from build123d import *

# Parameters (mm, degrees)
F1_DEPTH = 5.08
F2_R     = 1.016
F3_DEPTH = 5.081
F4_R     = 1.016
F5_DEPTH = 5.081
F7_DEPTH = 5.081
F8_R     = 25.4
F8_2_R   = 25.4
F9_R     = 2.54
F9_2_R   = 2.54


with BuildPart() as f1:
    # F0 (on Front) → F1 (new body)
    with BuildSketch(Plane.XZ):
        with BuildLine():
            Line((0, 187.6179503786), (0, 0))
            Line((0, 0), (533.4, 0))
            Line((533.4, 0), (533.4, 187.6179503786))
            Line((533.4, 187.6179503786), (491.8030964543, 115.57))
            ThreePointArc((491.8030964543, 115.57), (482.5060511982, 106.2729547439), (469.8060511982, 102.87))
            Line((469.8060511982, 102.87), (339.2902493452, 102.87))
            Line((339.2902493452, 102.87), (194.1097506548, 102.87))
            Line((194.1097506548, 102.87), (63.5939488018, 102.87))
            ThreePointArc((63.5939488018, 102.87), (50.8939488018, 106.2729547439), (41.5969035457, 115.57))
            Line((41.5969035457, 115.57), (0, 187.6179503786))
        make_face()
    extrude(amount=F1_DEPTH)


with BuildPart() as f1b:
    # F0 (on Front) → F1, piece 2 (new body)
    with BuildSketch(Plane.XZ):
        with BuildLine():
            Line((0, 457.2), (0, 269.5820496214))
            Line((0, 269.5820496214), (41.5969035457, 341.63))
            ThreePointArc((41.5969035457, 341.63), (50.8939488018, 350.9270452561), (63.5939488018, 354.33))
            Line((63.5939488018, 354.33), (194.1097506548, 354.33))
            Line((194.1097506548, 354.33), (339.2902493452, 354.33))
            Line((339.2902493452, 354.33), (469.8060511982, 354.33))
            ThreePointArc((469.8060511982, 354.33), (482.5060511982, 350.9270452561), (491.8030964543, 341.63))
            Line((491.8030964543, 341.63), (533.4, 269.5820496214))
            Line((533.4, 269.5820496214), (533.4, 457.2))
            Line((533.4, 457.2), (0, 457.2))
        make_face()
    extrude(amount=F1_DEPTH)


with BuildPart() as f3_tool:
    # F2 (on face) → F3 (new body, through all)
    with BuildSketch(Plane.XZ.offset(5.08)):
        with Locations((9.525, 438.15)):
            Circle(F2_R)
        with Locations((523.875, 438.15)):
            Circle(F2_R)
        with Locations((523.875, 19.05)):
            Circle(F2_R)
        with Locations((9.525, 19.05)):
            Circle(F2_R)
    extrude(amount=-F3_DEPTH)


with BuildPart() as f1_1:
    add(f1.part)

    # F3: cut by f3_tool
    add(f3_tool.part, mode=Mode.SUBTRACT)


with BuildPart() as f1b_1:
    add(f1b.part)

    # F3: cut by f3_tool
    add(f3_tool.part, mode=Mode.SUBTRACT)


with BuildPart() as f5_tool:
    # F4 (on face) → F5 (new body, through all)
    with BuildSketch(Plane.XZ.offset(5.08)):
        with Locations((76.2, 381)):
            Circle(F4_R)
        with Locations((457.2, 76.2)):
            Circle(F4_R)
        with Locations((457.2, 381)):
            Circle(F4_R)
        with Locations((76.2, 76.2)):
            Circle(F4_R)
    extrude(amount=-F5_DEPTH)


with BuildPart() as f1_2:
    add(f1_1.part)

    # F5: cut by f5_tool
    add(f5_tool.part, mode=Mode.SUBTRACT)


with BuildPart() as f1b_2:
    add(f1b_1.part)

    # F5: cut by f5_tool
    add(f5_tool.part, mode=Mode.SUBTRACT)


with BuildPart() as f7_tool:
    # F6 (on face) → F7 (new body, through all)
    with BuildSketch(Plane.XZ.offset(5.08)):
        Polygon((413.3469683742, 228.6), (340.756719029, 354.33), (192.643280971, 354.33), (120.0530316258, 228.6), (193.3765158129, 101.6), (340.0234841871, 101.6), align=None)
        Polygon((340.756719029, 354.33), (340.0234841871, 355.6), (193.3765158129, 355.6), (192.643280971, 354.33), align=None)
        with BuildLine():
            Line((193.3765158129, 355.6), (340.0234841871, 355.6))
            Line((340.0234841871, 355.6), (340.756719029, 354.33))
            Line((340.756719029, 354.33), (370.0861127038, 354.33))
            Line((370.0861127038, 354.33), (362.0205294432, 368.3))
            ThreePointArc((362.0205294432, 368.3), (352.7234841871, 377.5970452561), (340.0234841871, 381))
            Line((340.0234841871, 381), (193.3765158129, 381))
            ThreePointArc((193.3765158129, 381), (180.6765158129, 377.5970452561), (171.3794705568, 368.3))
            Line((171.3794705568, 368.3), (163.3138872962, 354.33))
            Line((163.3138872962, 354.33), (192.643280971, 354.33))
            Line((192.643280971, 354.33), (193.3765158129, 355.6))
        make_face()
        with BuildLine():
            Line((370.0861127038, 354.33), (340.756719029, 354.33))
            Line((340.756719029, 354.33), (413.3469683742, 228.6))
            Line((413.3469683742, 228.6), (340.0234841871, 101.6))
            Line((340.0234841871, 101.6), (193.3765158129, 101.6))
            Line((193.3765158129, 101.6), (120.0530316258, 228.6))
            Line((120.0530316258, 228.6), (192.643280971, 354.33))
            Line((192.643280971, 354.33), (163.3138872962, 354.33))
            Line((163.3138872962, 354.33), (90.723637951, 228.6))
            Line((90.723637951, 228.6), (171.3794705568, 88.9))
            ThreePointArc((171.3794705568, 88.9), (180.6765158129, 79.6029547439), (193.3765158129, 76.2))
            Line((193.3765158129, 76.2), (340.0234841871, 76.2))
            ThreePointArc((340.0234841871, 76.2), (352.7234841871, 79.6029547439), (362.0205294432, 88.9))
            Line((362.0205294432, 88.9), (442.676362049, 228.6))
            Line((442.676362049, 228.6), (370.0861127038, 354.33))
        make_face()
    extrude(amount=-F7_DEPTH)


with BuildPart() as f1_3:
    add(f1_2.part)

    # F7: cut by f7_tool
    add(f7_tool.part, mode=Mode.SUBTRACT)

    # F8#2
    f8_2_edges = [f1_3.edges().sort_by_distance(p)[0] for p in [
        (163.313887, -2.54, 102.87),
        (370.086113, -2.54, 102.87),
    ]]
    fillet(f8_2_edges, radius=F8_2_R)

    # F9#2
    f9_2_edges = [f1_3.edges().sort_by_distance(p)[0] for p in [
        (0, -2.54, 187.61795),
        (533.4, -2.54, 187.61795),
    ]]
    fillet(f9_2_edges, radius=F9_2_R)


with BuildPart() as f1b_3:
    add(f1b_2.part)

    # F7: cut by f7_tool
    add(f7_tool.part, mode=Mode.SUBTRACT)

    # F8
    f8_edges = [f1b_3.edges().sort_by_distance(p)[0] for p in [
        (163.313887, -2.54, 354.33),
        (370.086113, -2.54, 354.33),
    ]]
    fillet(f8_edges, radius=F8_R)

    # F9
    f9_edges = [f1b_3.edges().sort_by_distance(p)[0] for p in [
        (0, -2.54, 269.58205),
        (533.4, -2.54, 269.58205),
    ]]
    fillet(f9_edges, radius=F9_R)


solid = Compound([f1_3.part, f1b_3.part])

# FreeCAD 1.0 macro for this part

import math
import FreeCAD as App
import Part
import Sketcher
from FreeCAD import Vector
Q = App.Units.Quantity


def edges_at(feature, points):
    """Names of the edges that pass closest to the given points."""
    edges = feature.Shape.Edges
    near = lambda p: min(range(len(edges)), key=lambda i: edges[i].distToShape(Part.Vertex(*p))[0])
    return sorted({f"Edge{near(p) + 1}" for p in points})

doc = App.newDocument("Part")
body = doc.addObject("PartDesign::Body", "Body")

sketch1 = body.newObject("Sketcher::SketchObject", "Sketch")
sketch1.AttachmentSupport = (doc.getObject("XZ_Plane"), [""])
sketch1.MapMode = "FlatFace"
sketch1.addGeometry([
    Part.LineSegment(Vector(0, 187.61795, 0), Vector(0, 0, 0)),
    Part.LineSegment(Vector(0, 0, 0), Vector(533.4, 0, 0)),
    Part.LineSegment(Vector(533.4, 0, 0), Vector(533.4, 187.61795, 0)),
    Part.LineSegment(Vector(533.4, 187.61795, 0), Vector(491.803096, 115.57, 0)),
    Part.ArcOfCircle(Part.Circle(Vector(469.806051, 128.27, 0), Vector(0, 0, 1), 25.4), math.radians(-90), math.radians(-30)),
    Part.LineSegment(Vector(469.806051, 102.87, 0), Vector(63.593949, 102.87, 0)),
    Part.ArcOfCircle(Part.Circle(Vector(63.593949, 128.27, 0), Vector(0, 0, 1), 25.4), math.radians(-150), math.radians(-90)),
    Part.LineSegment(Vector(41.596904, 115.57, 0), Vector(0, 187.61795, 0)),
], False)
sketch1.addConstraint([
    Sketcher.Constraint("Coincident", 0, 2, 1, 1),
    Sketcher.Constraint("Coincident", 1, 2, 2, 1),
    Sketcher.Constraint("Coincident", 2, 2, 3, 1),
    Sketcher.Constraint("Tangent", 3, 2, 4, 2),
    Sketcher.Constraint("Tangent", 4, 1, 5, 1),
    Sketcher.Constraint("Tangent", 5, 2, 6, 2),
    Sketcher.Constraint("Tangent", 6, 1, 7, 1),
    Sketcher.Constraint("Coincident", 7, 2, 0, 1),
    Sketcher.Constraint("Vertical", 0),
    Sketcher.Constraint("Horizontal", 1),
    Sketcher.Constraint("Vertical", 2),
    Sketcher.Constraint("Horizontal", 5),
    Sketcher.Constraint("Coincident", 0, 2, -1, 1),
    Sketcher.Constraint("Equal", 4, 6),
    Sketcher.Constraint("Horizontal", 3, 2, 6, 1),
    Sketcher.Constraint("Horizontal", 2, 2, 7, 2),
    Sketcher.Constraint("Radius", 4, Q("1 in")),
    Sketcher.Constraint("DistanceX", 1, 1, 1, 2, Q("21 in")),
    Sketcher.Constraint("Angle", 3, Q("-120 deg")),
    Sketcher.Constraint("DistanceY", -1, 1, 4, 3, Q("5.05 in")),
    Sketcher.Constraint("DistanceY", 0, 2, 0, 1, Q("187.61795 mm")),
])
pad1 = body.newObject("PartDesign::Pad", "Pad")
pad1.Profile = sketch1
pad1.Length = Q("0.2 in")
body2 = doc.addObject("PartDesign::Body", "Body001")

sketch2 = body2.newObject("Sketcher::SketchObject", "Sketch001")
sketch2.AttachmentSupport = (doc.getObject("XZ_Plane001"), [""])
sketch2.MapMode = "FlatFace"
sketch2.addGeometry([
    Part.LineSegment(Vector(0, 457.2, 0), Vector(0, 269.58205, 0)),
    Part.LineSegment(Vector(0, 269.58205, 0), Vector(41.596904, 341.63, 0)),
    Part.ArcOfCircle(Part.Circle(Vector(63.593949, 328.93, 0), Vector(0, 0, 1), 25.4), math.radians(90), math.radians(150)),
    Part.LineSegment(Vector(63.593949, 354.33, 0), Vector(469.806051, 354.33, 0)),
    Part.ArcOfCircle(Part.Circle(Vector(469.806051, 328.93, 0), Vector(0, 0, 1), 25.4), math.radians(30), math.radians(90)),
    Part.LineSegment(Vector(491.803096, 341.63, 0), Vector(533.4, 269.58205, 0)),
    Part.LineSegment(Vector(533.4, 269.58205, 0), Vector(533.4, 457.2, 0)),
    Part.LineSegment(Vector(533.4, 457.2, 0), Vector(0, 457.2, 0)),
], False)
sketch2.addConstraint([
    Sketcher.Constraint("Coincident", 0, 2, 1, 1),
    Sketcher.Constraint("Tangent", 1, 2, 2, 2),
    Sketcher.Constraint("Tangent", 2, 1, 3, 1),
    Sketcher.Constraint("Tangent", 3, 2, 4, 2),
    Sketcher.Constraint("Tangent", 4, 1, 5, 1),
    Sketcher.Constraint("Coincident", 5, 2, 6, 1),
    Sketcher.Constraint("Coincident", 6, 2, 7, 1),
    Sketcher.Constraint("Coincident", 7, 2, 0, 1),
    Sketcher.Constraint("Vertical", 0),
    Sketcher.Constraint("Horizontal", 3),
    Sketcher.Constraint("Vertical", 6),
    Sketcher.Constraint("Horizontal", 7),
    Sketcher.Constraint("Equal", 2, 4),
    Sketcher.Constraint("PointOnObject", 0, 2, -2),
    Sketcher.Constraint("Horizontal", 1, 2, 4, 1),
    Sketcher.Constraint("Horizontal", 0, 2, 5, 2),
    Sketcher.Constraint("Radius", 2, Q("1 in")),
    Sketcher.Constraint("DistanceX", 7, 2, 7, 1, Q("21 in")),
    Sketcher.Constraint("DistanceY", -1, 1, 6, 2, Q("18 in")),
    Sketcher.Constraint("Angle", 1, Q("60 deg")),
    Sketcher.Constraint("DistanceY", -1, 1, 2, 3, Q("12.95 in")),
    Sketcher.Constraint("DistanceY", 0, 2, 0, 1, Q("187.61795 mm")),
])
pad2 = body2.newObject("PartDesign::Pad", "Pad001")
pad2.Profile = sketch2
pad2.Length = Q("0.2 in")
body3 = doc.addObject("PartDesign::Body", "Body002")
body3.AllowCompound = True

sketch3 = body3.newObject("Sketcher::SketchObject", "Sketch002")
sketch3.AttachmentSupport = (doc.getObject("XZ_Plane002"), [""])
sketch3.MapMode = "FlatFace"
sketch3.AttachmentOffset = App.Placement(Vector(0, 0, 0.2 * 25.4), App.Rotation())
sketch3.addGeometry([
    Part.Circle(Vector(9.525, 438.15, 0), Vector(0, 0, 1), 1.016),
    Part.Circle(Vector(523.875, 438.15, 0), Vector(0, 0, 1), 1.016),
    Part.Circle(Vector(523.875, 19.05, 0), Vector(0, 0, 1), 1.016),
    Part.Circle(Vector(9.525, 19.05, 0), Vector(0, 0, 1), 1.016),
], False)
sketch3.addConstraint([
    Sketcher.Constraint("Equal", 0, 1),
    Sketcher.Constraint("Equal", 1, 2),
    Sketcher.Constraint("Equal", 2, 3),
    Sketcher.Constraint("Horizontal", 0, 3, 1, 3),
    Sketcher.Constraint("Horizontal", 2, 3, 3, 3),
    Sketcher.Constraint("Vertical", 1, 3, 2, 3),
    Sketcher.Constraint("Vertical", 0, 3, 3, 3),
    Sketcher.Constraint("Diameter", 0, Q("0.08 in")),
    Sketcher.Constraint("DistanceY", 2, 3, 1, 3, Q("16.5 in")),
    Sketcher.Constraint("DistanceY", -1, 1, 0, 3, Q("17.25 in")),
    Sketcher.Constraint("DistanceX", 0, 3, 1, 3, Q("20.25 in")),
    Sketcher.Constraint("DistanceX", -1, 1, 0, 3, Q("0.375 in")),
])
pad3 = body3.newObject("PartDesign::Pad", "Pad002")
pad3.Profile = sketch3
pad3.Length = 5.081
pad3.Reversed = True
doc.recompute()

body4 = doc.addObject("PartDesign::Body", "Body003")
body4.BaseFeature = body3
boolean = body.newObject("PartDesign::Boolean", "Boolean")
boolean.Type = "Cut"
boolean.addObjects([body4])
doc.recompute()

boolean2 = body2.newObject("PartDesign::Boolean", "Boolean001")
boolean2.Type = "Cut"
boolean2.addObjects([body3])
body5 = doc.addObject("PartDesign::Body", "Body004")
body5.AllowCompound = True

sketch4 = body5.newObject("Sketcher::SketchObject", "Sketch003")
sketch4.AttachmentSupport = (doc.getObject("XZ_Plane004"), [""])
sketch4.MapMode = "FlatFace"
sketch4.AttachmentOffset = App.Placement(Vector(0, 0, 0.2 * 25.4), App.Rotation())
sketch4.addGeometry([
    Part.Circle(Vector(76.2, 381, 0), Vector(0, 0, 1), 1.016),
    Part.Circle(Vector(457.2, 76.2, 0), Vector(0, 0, 1), 1.016),
    Part.Circle(Vector(457.2, 381, 0), Vector(0, 0, 1), 1.016),
    Part.Circle(Vector(76.2, 76.2, 0), Vector(0, 0, 1), 1.016),
], False)
sketch4.addConstraint([
    Sketcher.Constraint("Equal", 0, 1),
    Sketcher.Constraint("Equal", 1, 2),
    Sketcher.Constraint("Equal", 2, 3),
    Sketcher.Constraint("Horizontal", 0, 3, 2, 3),
    Sketcher.Constraint("Horizontal", 1, 3, 3, 3),
    Sketcher.Constraint("Vertical", 1, 3, 2, 3),
    Sketcher.Constraint("Vertical", 0, 3, 3, 3),
    Sketcher.Constraint("Diameter", 0, Q("0.08 in")),
    Sketcher.Constraint("DistanceX", -1, 1, 0, 3, Q("3 in")),
    Sketcher.Constraint("DistanceY", -1, 1, 0, 3, Q("15 in")),
    Sketcher.Constraint("DistanceX", -1, 1, 1, 3, Q("18 in")),
    Sketcher.Constraint("DistanceY", -1, 1, 1, 3, Q("3 in")),
])
pad4 = body5.newObject("PartDesign::Pad", "Pad003")
pad4.Profile = sketch4
pad4.Length = 5.081
pad4.Reversed = True
doc.recompute()

body6 = doc.addObject("PartDesign::Body", "Body005")
body6.BaseFeature = body5
boolean3 = body.newObject("PartDesign::Boolean", "Boolean002")
boolean3.Type = "Cut"
boolean3.addObjects([body6])
doc.recompute()

boolean4 = body2.newObject("PartDesign::Boolean", "Boolean003")
boolean4.Type = "Cut"
boolean4.addObjects([body5])
body7 = doc.addObject("PartDesign::Body", "Body006")

sketch5 = body7.newObject("Sketcher::SketchObject", "Sketch004")
sketch5.AttachmentSupport = (doc.getObject("XZ_Plane006"), [""])
sketch5.MapMode = "FlatFace"
sketch5.AttachmentOffset = App.Placement(Vector(0, 0, 0.2 * 25.4), App.Rotation())
sketch5.addGeometry([
    Part.LineSegment(Vector(370.086113, 354.33, 0), Vector(362.020529, 368.3, 0)),
    Part.ArcOfCircle(Part.Circle(Vector(340.023484, 355.6, 0), Vector(0, 0, 1), 25.4), math.radians(30), math.radians(90)),
    Part.LineSegment(Vector(340.023484, 381, 0), Vector(193.376516, 381, 0)),
    Part.ArcOfCircle(Part.Circle(Vector(193.376516, 355.6, 0), Vector(0, 0, 1), 25.4), math.radians(90), math.radians(150)),
    Part.LineSegment(Vector(171.379471, 368.3, 0), Vector(163.313887, 354.33, 0)),
    Part.LineSegment(Vector(163.313887, 354.33, 0), Vector(90.723638, 228.6, 0)),
    Part.LineSegment(Vector(90.723638, 228.6, 0), Vector(171.379471, 88.9, 0)),
    Part.ArcOfCircle(Part.Circle(Vector(193.376516, 101.6, 0), Vector(0, 0, 1), 25.4), math.radians(-150), math.radians(-90)),
    Part.LineSegment(Vector(193.376516, 76.2, 0), Vector(340.023484, 76.2, 0)),
    Part.ArcOfCircle(Part.Circle(Vector(340.023484, 101.6, 0), Vector(0, 0, 1), 25.4), math.radians(-90), math.radians(-30)),
    Part.LineSegment(Vector(362.020529, 88.9, 0), Vector(442.676362, 228.6, 0)),
    Part.LineSegment(Vector(442.676362, 228.6, 0), Vector(370.086113, 354.33, 0)),
], False)
sketch5.addConstraint([
    Sketcher.Constraint("Tangent", 0, 2, 1, 1),
    Sketcher.Constraint("Tangent", 1, 2, 2, 1),
    Sketcher.Constraint("Tangent", 2, 2, 3, 1),
    Sketcher.Constraint("Tangent", 3, 2, 4, 1),
    Sketcher.Constraint("Coincident", 4, 2, 5, 1),
    Sketcher.Constraint("Coincident", 5, 2, 6, 1),
    Sketcher.Constraint("Tangent", 6, 2, 7, 1),
    Sketcher.Constraint("Tangent", 7, 2, 8, 1),
    Sketcher.Constraint("Tangent", 8, 2, 9, 1),
    Sketcher.Constraint("Tangent", 9, 2, 10, 1),
    Sketcher.Constraint("Coincident", 10, 2, 11, 1),
    Sketcher.Constraint("Coincident", 11, 2, 0, 1),
    Sketcher.Constraint("Horizontal", 2),
    Sketcher.Constraint("Horizontal", 8),
    Sketcher.Constraint("Equal", 1, 3),
    Sketcher.Constraint("Equal", 3, 7),
    Sketcher.Constraint("Equal", 7, 9),
    Sketcher.Constraint("Parallel", 4, 5),
    Sketcher.Constraint("Parallel", 0, 6),
    Sketcher.Constraint("Parallel", 5, 10),
    Sketcher.Constraint("Parallel", 6, 11),
    Sketcher.Constraint("Horizontal", 0, 2, 3, 2),
    Sketcher.Constraint("Horizontal", 5, 2, 10, 2),
    Sketcher.Constraint("Horizontal", 4, 2, 11, 2),
    Sketcher.Constraint("Vertical", 3, 3, 7, 3),
    Sketcher.Constraint("Radius", 1, Q("1 in")),
    Sketcher.Constraint("DistanceY", -1, 1, 1, 3, Q("14 in")),
    Sketcher.Constraint("DistanceY", -1, 1, 7, 3, Q("4 in")),
    Sketcher.Constraint("Angle", 0, Q("120 deg")),
    Sketcher.Constraint("DistanceY", -1, 1, 4, 2, Q("13.95 in")),
    Sketcher.Constraint("DistanceX", 2, 2, 2, 1, Q("146.646968 mm")),
    Sketcher.Constraint("DistanceX", -1, 1, 0, 2, Q("362.020529 mm")),
])
pad5 = body7.newObject("PartDesign::Pad", "Pad004")
pad5.Profile = sketch5
pad5.Length = 5.081
pad5.Reversed = True
doc.recompute()

body8 = doc.addObject("PartDesign::Body", "Body007")
body8.BaseFeature = body7
boolean5 = body.newObject("PartDesign::Boolean", "Boolean004")
boolean5.Type = "Cut"
boolean5.addObjects([body8])
doc.recompute()

fillet = body.newObject("PartDesign::Fillet", "Fillet")
fillet.Base = (boolean5, edges_at(boolean5, [(163.314, -2.54, 102.87), (370.086, -2.54, 102.87)]))
fillet.Radius = Q("1 in")
doc.recompute()

fillet2 = body.newObject("PartDesign::Fillet", "Fillet001")
fillet2.Base = (fillet, edges_at(fillet, [(0, -2.54, 187.618), (533.4, -2.54, 187.618)]))
fillet2.Radius = Q("0.1 in")
doc.recompute()

boolean6 = body2.newObject("PartDesign::Boolean", "Boolean005")
boolean6.Type = "Cut"
boolean6.addObjects([body7])
doc.recompute()

fillet3 = body2.newObject("PartDesign::Fillet", "Fillet002")
fillet3.Base = (boolean6, edges_at(boolean6, [(163.314, -2.54, 354.33), (370.086, -2.54, 354.33)]))
fillet3.Radius = Q("1 in")
doc.recompute()

fillet4 = body2.newObject("PartDesign::Fillet", "Fillet003")
fillet4.Base = (fillet3, edges_at(fillet3, [(0, -2.54, 269.582), (533.4, -2.54, 269.582)]))
fillet4.Radius = Q("0.1 in")

doc.recompute()
